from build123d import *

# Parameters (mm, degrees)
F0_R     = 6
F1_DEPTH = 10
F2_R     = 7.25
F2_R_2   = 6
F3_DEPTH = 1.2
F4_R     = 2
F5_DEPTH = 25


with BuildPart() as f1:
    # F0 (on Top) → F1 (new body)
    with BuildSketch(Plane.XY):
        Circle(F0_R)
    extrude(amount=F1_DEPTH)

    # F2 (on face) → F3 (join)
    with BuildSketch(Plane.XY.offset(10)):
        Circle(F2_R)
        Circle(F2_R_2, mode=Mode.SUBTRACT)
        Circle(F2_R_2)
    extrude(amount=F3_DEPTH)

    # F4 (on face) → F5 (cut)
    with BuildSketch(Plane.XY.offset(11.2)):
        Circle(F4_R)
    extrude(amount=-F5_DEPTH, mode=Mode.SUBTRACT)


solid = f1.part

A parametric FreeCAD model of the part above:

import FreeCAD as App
import Part
import Sketcher

V = App.Vector

doc = App.newDocument("Part")
body = doc.addObject("PartDesign::Body", "Body")

# Sketch on XY plane
sketch1 = body.newObject("Sketcher::SketchObject", "Sketch")
sketch1.AttachmentSupport = (doc.getObject("XY_Plane"), [""])
sketch1.MapMode = "FlatFace"
sketch1.addGeometry(Part.Circle(V(0, 0, 0), V(0, 0, 1), 6), False)
sketch1.addConstraint(Sketcher.Constraint("Coincident", 0, 3, -1, 1))
sketch1.addConstraint(Sketcher.Constraint("Diameter", 0, 12.0))
pad1 = body.newObject("PartDesign::Pad", "Pad")
pad1.Profile = sketch1
pad1.Length = 10

# Sketch on XY plane
sketch2 = body.newObject("Sketcher::SketchObject", "Sketch001")
sketch2.AttachmentSupport = (doc.getObject("XY_Plane"), [""])
sketch2.MapMode = "FlatFace"
sketch2.AttachmentOffset = App.Placement(V(0, 0, 10), App.Rotation())
sketch2.addGeometry(Part.Circle(V(0, 0, 0), V(0, 0, 1), 7.25), False)
sketch2.addConstraint(Sketcher.Constraint("Coincident", 0, 3, -1, 1))
sketch2.addConstraint(Sketcher.Constraint("Diameter", 0, 14.5))
pad2 = body.newObject("PartDesign::Pad", "Pad001")
pad2.Profile = sketch2
pad2.Length = 1.2

# Sketch on XY plane
sketch3 = body.newObject("Sketcher::SketchObject", "Sketch002")
sketch3.AttachmentSupport = (doc.getObject("XY_Plane"), [""])
sketch3.MapMode = "FlatFace"
sketch3.AttachmentOffset = App.Placement(V(0, 0, 11.2), App.Rotation())
sketch3.addGeometry(Part.Circle(V(0, 0, 0), V(0, 0, 1), 2), False)
sketch3.addConstraint(Sketcher.Constraint("Coincident", 0, 3, -1, 1))
sketch3.addConstraint(Sketcher.Constraint("Diameter", 0, 4.0))
pocket1 = body.newObject("PartDesign::Pocket", "Pocket")
pocket1.Profile = sketch3
pocket1.Length = 25

doc.recompute()
